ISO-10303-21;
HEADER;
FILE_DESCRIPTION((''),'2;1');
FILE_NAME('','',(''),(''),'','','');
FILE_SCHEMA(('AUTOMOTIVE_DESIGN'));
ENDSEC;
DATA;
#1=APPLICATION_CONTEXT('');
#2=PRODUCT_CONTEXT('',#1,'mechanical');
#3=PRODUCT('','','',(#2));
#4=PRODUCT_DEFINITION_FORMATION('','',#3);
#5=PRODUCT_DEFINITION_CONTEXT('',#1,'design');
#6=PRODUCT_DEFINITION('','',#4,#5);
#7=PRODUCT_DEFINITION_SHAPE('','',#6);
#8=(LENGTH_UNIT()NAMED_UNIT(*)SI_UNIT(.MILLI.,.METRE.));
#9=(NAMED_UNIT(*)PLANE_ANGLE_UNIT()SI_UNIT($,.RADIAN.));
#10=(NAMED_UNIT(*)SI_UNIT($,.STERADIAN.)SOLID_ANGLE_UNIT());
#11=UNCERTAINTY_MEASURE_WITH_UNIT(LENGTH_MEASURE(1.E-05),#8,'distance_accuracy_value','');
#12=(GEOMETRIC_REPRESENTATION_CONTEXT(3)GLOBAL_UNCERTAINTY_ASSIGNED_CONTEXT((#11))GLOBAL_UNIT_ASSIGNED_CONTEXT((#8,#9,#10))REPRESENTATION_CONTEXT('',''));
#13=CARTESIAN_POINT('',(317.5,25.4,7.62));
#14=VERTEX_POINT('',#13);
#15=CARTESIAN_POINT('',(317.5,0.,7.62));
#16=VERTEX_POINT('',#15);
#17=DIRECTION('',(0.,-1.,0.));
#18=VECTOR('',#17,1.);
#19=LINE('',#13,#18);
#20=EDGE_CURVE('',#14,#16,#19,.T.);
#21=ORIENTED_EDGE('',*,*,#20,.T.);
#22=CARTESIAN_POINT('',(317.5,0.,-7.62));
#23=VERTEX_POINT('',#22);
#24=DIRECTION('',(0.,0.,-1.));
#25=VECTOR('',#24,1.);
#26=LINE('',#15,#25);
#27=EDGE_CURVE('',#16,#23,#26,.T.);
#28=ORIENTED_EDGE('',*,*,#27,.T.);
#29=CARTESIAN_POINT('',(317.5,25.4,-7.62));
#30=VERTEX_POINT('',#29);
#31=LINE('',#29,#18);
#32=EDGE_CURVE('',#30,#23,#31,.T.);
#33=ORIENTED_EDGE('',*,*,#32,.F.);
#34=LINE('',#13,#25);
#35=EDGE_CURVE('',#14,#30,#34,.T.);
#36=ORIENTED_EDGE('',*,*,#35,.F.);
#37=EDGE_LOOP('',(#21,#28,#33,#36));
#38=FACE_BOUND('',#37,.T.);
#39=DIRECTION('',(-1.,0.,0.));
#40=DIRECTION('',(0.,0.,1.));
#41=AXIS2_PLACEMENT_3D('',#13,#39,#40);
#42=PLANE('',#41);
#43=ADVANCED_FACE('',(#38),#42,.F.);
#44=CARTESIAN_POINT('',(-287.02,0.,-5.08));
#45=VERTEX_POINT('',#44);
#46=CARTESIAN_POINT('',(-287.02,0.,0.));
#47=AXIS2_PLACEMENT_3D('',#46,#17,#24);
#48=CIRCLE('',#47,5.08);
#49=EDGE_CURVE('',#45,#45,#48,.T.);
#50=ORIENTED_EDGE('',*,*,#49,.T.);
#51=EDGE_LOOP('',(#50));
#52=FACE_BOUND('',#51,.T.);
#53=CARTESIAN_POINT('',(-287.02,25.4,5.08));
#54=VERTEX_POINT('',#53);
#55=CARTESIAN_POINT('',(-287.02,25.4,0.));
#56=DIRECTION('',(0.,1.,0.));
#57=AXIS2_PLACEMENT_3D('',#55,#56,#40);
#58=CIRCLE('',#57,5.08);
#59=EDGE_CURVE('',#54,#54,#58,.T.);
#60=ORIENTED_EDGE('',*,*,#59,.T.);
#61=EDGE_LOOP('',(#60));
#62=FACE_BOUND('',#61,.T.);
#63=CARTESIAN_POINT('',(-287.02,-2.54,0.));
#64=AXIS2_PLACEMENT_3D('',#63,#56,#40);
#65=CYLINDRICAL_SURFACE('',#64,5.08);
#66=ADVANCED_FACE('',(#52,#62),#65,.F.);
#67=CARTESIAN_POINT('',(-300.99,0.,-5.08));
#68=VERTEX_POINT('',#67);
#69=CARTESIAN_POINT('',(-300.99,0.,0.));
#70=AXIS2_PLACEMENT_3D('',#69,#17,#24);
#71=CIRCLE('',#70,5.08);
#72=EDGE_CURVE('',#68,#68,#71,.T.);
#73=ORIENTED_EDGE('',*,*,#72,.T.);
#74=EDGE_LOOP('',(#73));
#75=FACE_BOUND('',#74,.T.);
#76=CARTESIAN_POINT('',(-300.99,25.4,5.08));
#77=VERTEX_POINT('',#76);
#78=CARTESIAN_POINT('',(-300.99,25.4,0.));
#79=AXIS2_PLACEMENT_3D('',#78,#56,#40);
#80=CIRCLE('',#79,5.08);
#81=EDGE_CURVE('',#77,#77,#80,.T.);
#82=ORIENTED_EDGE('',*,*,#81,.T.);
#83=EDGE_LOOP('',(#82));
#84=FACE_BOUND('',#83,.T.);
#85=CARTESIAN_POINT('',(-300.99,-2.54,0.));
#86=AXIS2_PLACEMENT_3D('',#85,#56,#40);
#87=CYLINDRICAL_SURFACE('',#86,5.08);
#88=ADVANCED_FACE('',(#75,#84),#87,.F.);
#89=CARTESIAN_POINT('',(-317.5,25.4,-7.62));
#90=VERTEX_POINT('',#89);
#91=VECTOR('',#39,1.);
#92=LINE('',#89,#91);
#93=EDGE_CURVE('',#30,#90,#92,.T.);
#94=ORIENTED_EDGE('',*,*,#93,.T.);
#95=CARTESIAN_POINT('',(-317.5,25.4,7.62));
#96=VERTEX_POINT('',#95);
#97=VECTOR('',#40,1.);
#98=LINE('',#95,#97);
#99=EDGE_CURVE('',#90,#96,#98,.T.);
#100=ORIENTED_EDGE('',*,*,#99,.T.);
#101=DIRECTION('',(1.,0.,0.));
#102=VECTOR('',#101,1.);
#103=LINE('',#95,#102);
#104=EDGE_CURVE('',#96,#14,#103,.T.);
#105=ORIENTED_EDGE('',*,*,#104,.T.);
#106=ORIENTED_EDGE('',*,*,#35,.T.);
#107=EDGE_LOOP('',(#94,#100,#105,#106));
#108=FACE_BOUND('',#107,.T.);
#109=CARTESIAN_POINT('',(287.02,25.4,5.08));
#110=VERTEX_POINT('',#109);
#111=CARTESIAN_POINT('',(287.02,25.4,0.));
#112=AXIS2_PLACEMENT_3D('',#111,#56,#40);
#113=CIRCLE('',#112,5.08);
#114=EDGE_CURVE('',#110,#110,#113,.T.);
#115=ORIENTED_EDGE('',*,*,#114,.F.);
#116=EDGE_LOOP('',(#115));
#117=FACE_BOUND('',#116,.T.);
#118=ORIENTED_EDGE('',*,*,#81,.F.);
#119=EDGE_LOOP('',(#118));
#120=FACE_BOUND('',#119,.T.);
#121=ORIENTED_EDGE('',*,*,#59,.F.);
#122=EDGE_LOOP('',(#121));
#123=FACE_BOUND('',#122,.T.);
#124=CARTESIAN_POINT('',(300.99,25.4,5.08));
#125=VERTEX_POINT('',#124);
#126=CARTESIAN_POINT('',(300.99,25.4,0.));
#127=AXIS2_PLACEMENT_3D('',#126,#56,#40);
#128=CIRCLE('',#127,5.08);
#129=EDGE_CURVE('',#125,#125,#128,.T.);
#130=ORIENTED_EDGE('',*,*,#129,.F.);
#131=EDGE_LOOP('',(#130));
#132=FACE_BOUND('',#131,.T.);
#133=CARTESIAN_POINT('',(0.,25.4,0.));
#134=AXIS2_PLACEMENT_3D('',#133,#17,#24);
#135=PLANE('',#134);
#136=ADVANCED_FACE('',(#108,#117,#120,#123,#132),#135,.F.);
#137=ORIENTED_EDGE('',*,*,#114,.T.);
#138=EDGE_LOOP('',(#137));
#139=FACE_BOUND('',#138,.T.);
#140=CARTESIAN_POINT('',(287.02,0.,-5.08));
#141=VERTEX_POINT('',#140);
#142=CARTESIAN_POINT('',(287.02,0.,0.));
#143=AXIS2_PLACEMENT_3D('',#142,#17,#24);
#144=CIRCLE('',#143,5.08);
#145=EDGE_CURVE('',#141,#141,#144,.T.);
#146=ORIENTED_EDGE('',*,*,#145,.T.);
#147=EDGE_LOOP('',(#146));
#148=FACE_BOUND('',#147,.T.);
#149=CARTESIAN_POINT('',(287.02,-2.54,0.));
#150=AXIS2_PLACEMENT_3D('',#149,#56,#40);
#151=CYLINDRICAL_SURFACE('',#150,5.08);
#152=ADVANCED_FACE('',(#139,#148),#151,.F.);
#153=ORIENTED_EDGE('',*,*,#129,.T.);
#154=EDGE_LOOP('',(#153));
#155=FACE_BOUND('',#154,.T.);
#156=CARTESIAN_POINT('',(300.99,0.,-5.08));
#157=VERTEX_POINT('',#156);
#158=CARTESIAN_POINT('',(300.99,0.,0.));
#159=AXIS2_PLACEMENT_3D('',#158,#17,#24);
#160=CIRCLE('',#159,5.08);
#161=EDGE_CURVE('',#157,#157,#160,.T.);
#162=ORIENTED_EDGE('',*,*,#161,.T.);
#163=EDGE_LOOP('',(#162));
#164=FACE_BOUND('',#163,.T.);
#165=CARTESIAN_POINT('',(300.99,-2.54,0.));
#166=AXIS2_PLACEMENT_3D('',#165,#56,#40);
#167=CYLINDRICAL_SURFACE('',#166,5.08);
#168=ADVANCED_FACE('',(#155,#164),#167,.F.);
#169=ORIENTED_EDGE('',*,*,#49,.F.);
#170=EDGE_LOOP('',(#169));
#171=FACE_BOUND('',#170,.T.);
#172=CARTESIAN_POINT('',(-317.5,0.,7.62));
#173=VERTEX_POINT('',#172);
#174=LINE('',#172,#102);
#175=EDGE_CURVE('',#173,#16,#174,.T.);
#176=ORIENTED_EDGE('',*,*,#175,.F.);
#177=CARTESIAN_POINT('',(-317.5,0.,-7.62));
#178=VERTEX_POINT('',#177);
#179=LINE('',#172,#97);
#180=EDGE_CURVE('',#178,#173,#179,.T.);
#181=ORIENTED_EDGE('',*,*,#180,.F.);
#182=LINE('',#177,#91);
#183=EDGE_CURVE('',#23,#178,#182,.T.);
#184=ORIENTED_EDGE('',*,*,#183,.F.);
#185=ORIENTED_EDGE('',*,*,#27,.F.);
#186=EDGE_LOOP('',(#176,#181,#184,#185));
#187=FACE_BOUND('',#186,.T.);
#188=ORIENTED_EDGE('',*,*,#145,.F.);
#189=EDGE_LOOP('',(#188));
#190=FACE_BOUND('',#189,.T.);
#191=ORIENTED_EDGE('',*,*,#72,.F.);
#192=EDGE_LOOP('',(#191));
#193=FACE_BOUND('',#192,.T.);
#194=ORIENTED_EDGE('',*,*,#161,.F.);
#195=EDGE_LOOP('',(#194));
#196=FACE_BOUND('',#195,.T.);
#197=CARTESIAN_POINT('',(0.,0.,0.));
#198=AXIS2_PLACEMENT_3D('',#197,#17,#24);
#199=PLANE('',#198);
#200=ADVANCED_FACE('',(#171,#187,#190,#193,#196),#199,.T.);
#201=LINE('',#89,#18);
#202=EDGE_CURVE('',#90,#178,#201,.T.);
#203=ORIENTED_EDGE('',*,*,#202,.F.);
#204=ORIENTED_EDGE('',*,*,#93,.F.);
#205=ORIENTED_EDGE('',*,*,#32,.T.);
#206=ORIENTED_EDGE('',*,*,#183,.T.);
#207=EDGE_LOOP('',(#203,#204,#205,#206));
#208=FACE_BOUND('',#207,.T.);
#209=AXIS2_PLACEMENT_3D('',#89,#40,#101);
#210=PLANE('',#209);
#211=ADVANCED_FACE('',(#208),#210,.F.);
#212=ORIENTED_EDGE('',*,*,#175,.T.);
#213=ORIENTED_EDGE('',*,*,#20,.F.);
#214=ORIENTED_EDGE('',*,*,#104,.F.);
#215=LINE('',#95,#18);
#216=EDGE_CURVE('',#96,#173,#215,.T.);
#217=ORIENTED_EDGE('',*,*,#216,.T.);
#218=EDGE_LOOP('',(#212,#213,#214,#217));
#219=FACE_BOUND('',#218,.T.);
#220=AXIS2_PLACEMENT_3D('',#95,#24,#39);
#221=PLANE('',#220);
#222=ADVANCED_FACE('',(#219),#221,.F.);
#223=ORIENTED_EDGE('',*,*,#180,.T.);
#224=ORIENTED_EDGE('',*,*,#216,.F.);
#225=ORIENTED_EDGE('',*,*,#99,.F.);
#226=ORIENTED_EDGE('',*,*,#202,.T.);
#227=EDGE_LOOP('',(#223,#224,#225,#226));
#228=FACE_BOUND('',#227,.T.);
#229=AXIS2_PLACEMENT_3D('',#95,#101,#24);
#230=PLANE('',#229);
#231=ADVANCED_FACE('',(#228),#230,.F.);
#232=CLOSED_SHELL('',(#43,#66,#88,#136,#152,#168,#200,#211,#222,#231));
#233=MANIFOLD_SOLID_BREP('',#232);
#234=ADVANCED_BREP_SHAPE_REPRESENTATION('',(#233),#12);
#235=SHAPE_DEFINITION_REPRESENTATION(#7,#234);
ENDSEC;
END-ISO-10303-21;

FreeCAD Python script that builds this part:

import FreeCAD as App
import Part
import Sketcher
Q = App.Units.Quantity

doc = App.newDocument("Part")
body = doc.addObject("PartDesign::Body", "Body")

sketch1 = body.newObject("Sketcher::SketchObject", "Sketch")
sketch1.AttachmentSupport = (doc.getObject("XZ_Plane"), [""])
sketch1.MapMode = "FlatFace"
sketch1.addGeometry([
    Part.LineSegment(App.Vector(-318, -8, 0), App.Vector(-318, 8, 0)),
    Part.LineSegment(App.Vector(-318, 8, 0), App.Vector(318, 8, 0)),
    Part.LineSegment(App.Vector(318, 8, 0), App.Vector(318, -8, 0)),
    Part.LineSegment(App.Vector(318, -8, 0), App.Vector(-318, -8, 0)),
], False)
sketch1.addConstraint([
    Sketcher.Constraint("Coincident", 0, 2, 1, 1),
    Sketcher.Constraint("Coincident", 1, 2, 2, 1),
    Sketcher.Constraint("Coincident", 2, 2, 3, 1),
    Sketcher.Constraint("Coincident", 3, 2, 0, 1),
    Sketcher.Constraint("Vertical", 0),
    Sketcher.Constraint("Horizontal", 1),
    Sketcher.Constraint("Vertical", 2),
    Sketcher.Constraint("Horizontal", 3),
    Sketcher.Constraint("Symmetric", 0, 2, 2, 2, -1, 1),
    Sketcher.Constraint("DistanceX", 1, 1, 1, 2, Q("25 in")),
    Sketcher.Constraint("DistanceY", 0, 1, 0, 2, Q("0.6 in")),
])
pad1 = body.newObject("PartDesign::Pad", "Pad")
pad1.Profile = sketch1
pad1.Length = Q("1 in")
pad1.Reversed = True

sketch2 = body.newObject("Sketcher::SketchObject", "Sketch001")
sketch2.AttachmentSupport = (doc.getObject("XZ_Plane"), [""])
sketch2.MapMode = "FlatFace"
sketch2.AttachmentOffset = App.Placement(App.Vector(0, 0, -1 * 25.4), App.Rotation())
sketch2.addGeometry([
    Part.Circle(App.Vector(-301, 0, 0), App.Vector(0, 0, 1), 5),
    Part.Circle(App.Vector(-287, 0, 0), App.Vector(0, 0, 1), 5),
    Part.Circle(App.Vector(301, 0, 0), App.Vector(0, 0, 1), 5),
    Part.Circle(App.Vector(287, 0, 0), App.Vector(0, 0, 1), 5),
], False)
sketch2.addConstraint([
    Sketcher.Constraint("Equal", 0, 1),
    Sketcher.Constraint("Equal", 1, 2),
    Sketcher.Constraint("Equal", 2, 3),
    Sketcher.Constraint("Symmetric", 0, 3, 2, 3, -1, 1),
    Sketcher.Constraint("Symmetric", 1, 3, 3, 3, -1, 1),
    Sketcher.Constraint("PointOnObject", 0, 3, -1),
    Sketcher.Constraint("PointOnObject", 1, 3, -1),
    Sketcher.Constraint("Diameter", 0, Q("0.4 in")),
    Sketcher.Constraint("DistanceX", 1, 3, -1, 1, Q("11.3 in")),
    Sketcher.Constraint("DistanceX", 0, 3, 2, 3, Q("23.7 in")),
])
pocket1 = body.newObject("PartDesign::Pocket", "Pocket")
pocket1.Profile = sketch2
pocket1.Length = Q("1.1 in")
pocket1.Reversed = True

doc.recompute()
